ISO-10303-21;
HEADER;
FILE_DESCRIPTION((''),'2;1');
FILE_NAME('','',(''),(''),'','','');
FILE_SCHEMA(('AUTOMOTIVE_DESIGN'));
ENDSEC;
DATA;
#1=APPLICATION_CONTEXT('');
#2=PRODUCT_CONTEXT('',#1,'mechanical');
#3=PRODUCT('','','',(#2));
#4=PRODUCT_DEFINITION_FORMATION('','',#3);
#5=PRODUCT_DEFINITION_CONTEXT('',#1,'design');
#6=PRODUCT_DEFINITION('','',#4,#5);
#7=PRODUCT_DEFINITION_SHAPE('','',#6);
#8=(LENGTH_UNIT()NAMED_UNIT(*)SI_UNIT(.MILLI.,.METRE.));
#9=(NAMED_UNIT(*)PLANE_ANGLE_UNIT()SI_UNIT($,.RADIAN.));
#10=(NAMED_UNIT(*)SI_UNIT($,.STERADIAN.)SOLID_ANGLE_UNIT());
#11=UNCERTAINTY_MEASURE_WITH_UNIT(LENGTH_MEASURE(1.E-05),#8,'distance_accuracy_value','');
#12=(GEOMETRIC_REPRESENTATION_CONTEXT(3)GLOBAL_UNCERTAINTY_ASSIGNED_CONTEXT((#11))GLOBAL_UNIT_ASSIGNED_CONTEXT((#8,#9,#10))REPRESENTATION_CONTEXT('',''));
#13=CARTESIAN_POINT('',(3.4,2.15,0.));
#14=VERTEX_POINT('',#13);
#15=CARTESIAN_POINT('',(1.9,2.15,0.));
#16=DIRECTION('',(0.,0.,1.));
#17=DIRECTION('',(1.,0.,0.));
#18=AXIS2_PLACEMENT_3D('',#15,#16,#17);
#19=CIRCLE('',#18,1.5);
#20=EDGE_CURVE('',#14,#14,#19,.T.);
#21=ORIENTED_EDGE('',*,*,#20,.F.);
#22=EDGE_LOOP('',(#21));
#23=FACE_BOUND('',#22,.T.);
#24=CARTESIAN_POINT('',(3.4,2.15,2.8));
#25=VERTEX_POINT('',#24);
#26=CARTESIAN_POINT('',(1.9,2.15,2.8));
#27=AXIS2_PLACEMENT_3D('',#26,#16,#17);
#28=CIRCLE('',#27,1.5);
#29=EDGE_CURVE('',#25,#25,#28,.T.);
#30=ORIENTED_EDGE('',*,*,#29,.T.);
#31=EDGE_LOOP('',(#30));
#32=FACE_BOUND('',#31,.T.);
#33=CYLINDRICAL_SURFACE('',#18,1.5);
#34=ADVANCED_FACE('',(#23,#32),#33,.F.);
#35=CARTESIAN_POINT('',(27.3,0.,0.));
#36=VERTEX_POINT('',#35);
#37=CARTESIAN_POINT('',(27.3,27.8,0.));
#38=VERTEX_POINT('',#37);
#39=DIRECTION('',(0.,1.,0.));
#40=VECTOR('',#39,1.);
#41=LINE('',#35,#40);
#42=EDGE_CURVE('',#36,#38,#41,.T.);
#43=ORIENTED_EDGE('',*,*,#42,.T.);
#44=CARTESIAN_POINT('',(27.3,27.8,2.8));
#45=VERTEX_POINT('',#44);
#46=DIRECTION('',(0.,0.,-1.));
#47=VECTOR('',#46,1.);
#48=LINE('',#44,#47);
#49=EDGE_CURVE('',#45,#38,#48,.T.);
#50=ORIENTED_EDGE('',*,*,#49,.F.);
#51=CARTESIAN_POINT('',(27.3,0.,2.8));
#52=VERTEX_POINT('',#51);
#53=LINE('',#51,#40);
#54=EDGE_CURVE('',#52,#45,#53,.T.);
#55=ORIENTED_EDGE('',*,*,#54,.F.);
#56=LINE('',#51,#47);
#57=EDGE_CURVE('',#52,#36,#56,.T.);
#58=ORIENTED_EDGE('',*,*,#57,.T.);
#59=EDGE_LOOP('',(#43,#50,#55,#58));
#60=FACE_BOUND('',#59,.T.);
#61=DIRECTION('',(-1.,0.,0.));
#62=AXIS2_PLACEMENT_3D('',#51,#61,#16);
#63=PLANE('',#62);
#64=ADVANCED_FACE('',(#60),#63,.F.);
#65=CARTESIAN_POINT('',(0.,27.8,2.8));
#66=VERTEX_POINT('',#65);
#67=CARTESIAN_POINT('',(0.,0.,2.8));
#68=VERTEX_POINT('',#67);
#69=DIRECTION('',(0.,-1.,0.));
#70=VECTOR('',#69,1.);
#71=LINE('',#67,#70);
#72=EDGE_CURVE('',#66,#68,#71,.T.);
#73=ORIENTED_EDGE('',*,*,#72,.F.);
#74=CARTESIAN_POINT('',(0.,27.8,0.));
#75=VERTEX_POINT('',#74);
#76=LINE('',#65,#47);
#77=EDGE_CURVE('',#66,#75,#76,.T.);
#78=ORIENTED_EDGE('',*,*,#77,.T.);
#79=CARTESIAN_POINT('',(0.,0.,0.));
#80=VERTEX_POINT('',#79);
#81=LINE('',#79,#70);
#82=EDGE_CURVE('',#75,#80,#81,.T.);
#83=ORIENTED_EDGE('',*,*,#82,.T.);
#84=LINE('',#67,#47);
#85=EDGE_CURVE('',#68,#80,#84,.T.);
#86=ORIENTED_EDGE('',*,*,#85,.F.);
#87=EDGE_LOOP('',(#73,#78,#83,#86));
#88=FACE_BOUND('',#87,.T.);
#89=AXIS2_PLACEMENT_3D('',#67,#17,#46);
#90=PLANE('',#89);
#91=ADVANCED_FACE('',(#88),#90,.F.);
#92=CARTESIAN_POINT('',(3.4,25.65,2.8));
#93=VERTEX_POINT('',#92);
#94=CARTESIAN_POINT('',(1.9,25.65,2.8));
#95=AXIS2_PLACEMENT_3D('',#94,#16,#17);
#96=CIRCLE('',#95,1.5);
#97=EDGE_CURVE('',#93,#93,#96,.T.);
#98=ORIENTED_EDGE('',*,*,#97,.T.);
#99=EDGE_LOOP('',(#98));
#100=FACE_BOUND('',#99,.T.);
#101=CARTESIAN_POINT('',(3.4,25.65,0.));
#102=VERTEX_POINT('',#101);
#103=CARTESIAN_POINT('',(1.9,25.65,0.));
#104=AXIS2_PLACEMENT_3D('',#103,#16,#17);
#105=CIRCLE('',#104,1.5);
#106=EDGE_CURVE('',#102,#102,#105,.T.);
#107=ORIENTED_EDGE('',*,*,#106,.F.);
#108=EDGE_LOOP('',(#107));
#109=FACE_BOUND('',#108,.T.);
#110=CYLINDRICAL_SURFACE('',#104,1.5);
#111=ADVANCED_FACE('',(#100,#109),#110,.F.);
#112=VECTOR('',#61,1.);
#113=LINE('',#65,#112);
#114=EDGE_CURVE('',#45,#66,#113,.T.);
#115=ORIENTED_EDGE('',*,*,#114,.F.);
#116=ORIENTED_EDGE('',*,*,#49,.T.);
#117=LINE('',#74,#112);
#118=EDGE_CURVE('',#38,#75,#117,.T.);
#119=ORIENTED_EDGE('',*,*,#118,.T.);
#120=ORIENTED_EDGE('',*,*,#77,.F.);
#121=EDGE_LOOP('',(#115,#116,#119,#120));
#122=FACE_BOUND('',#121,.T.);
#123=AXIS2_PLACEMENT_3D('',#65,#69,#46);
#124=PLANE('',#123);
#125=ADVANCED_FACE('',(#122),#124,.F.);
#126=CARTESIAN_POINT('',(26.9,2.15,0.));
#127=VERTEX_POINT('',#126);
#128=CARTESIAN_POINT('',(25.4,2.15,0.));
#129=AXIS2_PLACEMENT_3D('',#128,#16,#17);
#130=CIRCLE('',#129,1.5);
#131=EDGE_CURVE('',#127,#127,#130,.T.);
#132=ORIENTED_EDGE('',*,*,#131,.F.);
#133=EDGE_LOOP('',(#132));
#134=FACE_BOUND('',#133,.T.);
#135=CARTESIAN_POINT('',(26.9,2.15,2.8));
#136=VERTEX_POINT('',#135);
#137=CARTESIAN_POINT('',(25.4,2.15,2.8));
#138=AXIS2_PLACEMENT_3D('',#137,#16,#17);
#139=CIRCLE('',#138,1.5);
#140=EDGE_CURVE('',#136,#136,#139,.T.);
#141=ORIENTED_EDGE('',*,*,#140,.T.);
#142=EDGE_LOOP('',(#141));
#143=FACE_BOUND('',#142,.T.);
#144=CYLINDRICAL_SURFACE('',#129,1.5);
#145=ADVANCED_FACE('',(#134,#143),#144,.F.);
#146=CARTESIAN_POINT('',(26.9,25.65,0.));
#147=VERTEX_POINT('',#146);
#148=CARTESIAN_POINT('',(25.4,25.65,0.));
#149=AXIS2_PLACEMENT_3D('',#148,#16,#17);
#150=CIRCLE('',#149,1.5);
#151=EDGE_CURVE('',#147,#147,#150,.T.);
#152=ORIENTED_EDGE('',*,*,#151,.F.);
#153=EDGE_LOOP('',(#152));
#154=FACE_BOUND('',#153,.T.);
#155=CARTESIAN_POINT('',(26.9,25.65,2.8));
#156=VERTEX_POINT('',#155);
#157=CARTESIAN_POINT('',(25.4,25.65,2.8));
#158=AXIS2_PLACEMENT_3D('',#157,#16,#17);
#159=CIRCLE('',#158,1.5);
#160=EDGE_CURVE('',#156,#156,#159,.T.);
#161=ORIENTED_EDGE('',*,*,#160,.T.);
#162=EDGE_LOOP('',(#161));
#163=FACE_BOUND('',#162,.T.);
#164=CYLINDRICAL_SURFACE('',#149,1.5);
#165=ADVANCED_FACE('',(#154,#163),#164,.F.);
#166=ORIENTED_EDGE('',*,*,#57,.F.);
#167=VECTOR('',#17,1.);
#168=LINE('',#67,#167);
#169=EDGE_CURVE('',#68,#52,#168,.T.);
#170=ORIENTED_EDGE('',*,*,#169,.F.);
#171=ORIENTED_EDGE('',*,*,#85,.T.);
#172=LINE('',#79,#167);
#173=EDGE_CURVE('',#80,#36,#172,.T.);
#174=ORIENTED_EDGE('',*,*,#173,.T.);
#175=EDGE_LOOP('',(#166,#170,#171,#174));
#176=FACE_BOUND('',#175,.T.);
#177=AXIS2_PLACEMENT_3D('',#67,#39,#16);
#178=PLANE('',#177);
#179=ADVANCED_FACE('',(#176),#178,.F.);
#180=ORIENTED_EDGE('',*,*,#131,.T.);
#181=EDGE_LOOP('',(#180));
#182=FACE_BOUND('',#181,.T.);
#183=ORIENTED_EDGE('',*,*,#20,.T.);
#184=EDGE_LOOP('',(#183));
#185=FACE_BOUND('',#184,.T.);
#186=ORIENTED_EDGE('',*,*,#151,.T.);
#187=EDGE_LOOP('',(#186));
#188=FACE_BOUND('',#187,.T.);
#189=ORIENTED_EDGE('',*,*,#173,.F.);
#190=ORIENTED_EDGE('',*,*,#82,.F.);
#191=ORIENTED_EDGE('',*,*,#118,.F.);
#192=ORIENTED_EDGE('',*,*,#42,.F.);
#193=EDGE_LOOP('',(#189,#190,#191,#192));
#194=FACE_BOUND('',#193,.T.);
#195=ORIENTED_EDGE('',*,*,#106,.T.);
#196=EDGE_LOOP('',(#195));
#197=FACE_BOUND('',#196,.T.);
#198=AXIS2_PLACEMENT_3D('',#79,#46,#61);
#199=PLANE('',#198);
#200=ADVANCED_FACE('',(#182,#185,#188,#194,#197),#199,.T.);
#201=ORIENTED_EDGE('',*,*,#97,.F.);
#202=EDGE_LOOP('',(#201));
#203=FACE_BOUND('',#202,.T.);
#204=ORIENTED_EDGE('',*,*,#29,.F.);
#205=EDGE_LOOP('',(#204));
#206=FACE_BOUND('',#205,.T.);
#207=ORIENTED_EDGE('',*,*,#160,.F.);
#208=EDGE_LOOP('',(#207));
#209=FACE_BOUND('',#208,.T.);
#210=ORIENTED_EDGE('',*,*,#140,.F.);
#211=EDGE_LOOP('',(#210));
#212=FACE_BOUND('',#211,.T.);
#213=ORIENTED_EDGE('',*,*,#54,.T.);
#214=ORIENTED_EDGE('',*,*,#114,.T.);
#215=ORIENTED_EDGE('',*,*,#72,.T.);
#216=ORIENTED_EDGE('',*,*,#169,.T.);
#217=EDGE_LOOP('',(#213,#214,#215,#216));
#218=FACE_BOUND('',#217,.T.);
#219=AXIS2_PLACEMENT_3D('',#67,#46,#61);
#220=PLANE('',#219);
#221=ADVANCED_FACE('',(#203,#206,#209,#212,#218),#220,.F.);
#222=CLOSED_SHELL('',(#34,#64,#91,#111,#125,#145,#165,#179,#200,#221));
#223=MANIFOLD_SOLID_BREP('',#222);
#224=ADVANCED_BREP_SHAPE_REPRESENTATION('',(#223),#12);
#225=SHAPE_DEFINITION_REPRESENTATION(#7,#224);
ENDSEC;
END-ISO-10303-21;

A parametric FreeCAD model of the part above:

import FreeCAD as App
import Part
import Sketcher
from FreeCAD import Vector
Q = App.Units.Quantity


def add_polygon(sketch, points):
    """Adds a closed chain of lines whose ends are joined by coincident constraints."""
    first, n = sketch.GeometryCount, len(points)
    for a, b in zip(points, points[1:] + points[:1]):
        sketch.addGeometry(Part.LineSegment(App.Vector(*a, 0), App.Vector(*b, 0)), False)
    for i in range(n):
        sketch.addConstraint(Sketcher.Constraint("Coincident", first + i, 2, first + (i + 1) % n, 1))

doc = App.newDocument("Part")
body = doc.addObject("PartDesign::Body", "Body")

# Sketch on XY plane
sketch1 = doc.addObject("Sketcher::SketchObject", "Sketch")
body.addObject(sketch1)
sketch1.AttachmentSupport = (doc.XY_Plane, [""])
sketch1.MapMode = "FlatFace"
add_polygon(sketch1, [(0, 28), (0, 0), (27, 0), (27, 28)])  # lines 0-3
sketch1.addConstraint([
    Sketcher.Constraint("Vertical", 0),
    Sketcher.Constraint("Horizontal", 1),
    Sketcher.Constraint("Vertical", 2),
    Sketcher.Constraint("Horizontal", 3),
    Sketcher.Constraint("Coincident", 0, 2, -1, 1),
    Sketcher.Constraint("DistanceX", 1, 1, 1, 2, Q("27.3 mm")),
    Sketcher.Constraint("DistanceY", 0, 2, 0, 1, Q("27.8 mm")),
])
pad1 = doc.addObject("PartDesign::Pad", "Pad")
body.addObject(pad1)
pad1.Profile = sketch1
pad1.Length = 2.8

# Sketch on XY plane
sketch2 = doc.addObject("Sketcher::SketchObject", "Sketch001")
body.addObject(sketch2)
sketch2.AttachmentSupport = (doc.XY_Plane, [""])
sketch2.MapMode = "FlatFace"
sketch2.AttachmentOffset = App.Placement(Vector(0, 0, 2.8), App.Rotation())
sketch2.addGeometry([
    Part.Circle(Vector(1.9, 25.6, 0), Vector(0, 0, 1), 1.5),
    Part.Circle(Vector(25.4, 25.6, 0), Vector(0, 0, 1), 1.5),
    Part.Circle(Vector(25.4, 2.1, 0), Vector(0, 0, 1), 1.5),
    Part.Circle(Vector(1.9, 2.1, 0), Vector(0, 0, 1), 1.5),
], False)
sketch2.addConstraint([
    Sketcher.Constraint("Equal", 0, 1),
    Sketcher.Constraint("Equal", 1, 2),
    Sketcher.Constraint("Equal", 2, 3),
    Sketcher.Constraint("Horizontal", 0, 3, 1, 3),
    Sketcher.Constraint("Horizontal", 2, 3, 3, 3),
    Sketcher.Constraint("Vertical", 1, 3, 2, 3),
    Sketcher.Constraint("Vertical", 0, 3, 3, 3),
    Sketcher.Constraint("Diameter", 0, Q("3 mm")),
    Sketcher.Constraint("DistanceX", -1, 1, 0, 3, Q("1.9 mm")),
    Sketcher.Constraint("DistanceX", -1, 1, 1, 3, Q("25.4 mm")),
    Sketcher.Constraint("DistanceY", 2, 3, 1, 3, Q("23.5 mm")),
    Sketcher.Constraint("DistanceY", -1, 1, 0, 3, Q("25.65 mm")),
])
pocket1 = doc.addObject("PartDesign::Pocket", "Pocket")
body.addObject(pocket1)
pocket1.Profile = sketch2
pocket1.Type = "ThroughAll"

doc.recompute()
